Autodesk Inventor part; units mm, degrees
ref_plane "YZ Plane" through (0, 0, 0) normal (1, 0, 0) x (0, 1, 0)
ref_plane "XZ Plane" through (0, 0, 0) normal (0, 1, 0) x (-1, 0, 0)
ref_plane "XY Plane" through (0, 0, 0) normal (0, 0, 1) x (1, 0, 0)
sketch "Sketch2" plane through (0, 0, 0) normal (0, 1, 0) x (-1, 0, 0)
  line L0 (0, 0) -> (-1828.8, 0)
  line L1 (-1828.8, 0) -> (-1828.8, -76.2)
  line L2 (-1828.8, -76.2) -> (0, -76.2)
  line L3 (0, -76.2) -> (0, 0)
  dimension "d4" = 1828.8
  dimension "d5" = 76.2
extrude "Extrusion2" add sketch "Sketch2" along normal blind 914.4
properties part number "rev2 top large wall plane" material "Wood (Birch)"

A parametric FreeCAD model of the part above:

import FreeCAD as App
import Part
import Sketcher
from FreeCAD import Vector
Q = App.Units.Quantity

doc = App.newDocument("Part")
body = doc.addObject("PartDesign::Body", "Body")

# Sketch on XZ plane
sketch1 = body.newObject("Sketcher::SketchObject", "Sketch")
sketch1.AttachmentSupport = (doc.getObject("XZ_Plane"), [""])
sketch1.MapMode = "FlatFace"
sketch1.addGeometry(Part.LineSegment(Vector(0, -76.2, 0), Vector(0, 0, 0)), False)
sketch1.addGeometry(Part.LineSegment(Vector(0, 0, 0), Vector(1828.8, 0, 0)), False)
sketch1.addGeometry(Part.LineSegment(Vector(1828.8, 0, 0), Vector(1828.8, -76.2, 0)), False)
sketch1.addGeometry(Part.LineSegment(Vector(1828.8, -76.2, 0), Vector(0, -76.2, 0)), False)
sketch1.addConstraint(Sketcher.Constraint("Coincident", 0, 2, 1, 1))
sketch1.addConstraint(Sketcher.Constraint("Coincident", 1, 2, 2, 1))
sketch1.addConstraint(Sketcher.Constraint("Coincident", 2, 2, 3, 1))
sketch1.addConstraint(Sketcher.Constraint("Coincident", 3, 2, 0, 1))
sketch1.addConstraint(Sketcher.Constraint("Vertical", 0))
sketch1.addConstraint(Sketcher.Constraint("Horizontal", 1))
sketch1.addConstraint(Sketcher.Constraint("Vertical", 2))
sketch1.addConstraint(Sketcher.Constraint("Horizontal", 3))
sketch1.addConstraint(Sketcher.Constraint("Coincident", 0, 2, -1, 1))
sketch1.addConstraint(Sketcher.Constraint("DistanceX", 1, 1, 1, 2, Q("72 in")))
sketch1.addConstraint(Sketcher.Constraint("DistanceY", 0, 1, 0, 2, Q("3 in")))
pad1 = body.newObject("PartDesign::Pad", "Pad")
pad1.Profile = sketch1
pad1.Length = Q("36 in")
pad1.Reversed = True

doc.recompute()
